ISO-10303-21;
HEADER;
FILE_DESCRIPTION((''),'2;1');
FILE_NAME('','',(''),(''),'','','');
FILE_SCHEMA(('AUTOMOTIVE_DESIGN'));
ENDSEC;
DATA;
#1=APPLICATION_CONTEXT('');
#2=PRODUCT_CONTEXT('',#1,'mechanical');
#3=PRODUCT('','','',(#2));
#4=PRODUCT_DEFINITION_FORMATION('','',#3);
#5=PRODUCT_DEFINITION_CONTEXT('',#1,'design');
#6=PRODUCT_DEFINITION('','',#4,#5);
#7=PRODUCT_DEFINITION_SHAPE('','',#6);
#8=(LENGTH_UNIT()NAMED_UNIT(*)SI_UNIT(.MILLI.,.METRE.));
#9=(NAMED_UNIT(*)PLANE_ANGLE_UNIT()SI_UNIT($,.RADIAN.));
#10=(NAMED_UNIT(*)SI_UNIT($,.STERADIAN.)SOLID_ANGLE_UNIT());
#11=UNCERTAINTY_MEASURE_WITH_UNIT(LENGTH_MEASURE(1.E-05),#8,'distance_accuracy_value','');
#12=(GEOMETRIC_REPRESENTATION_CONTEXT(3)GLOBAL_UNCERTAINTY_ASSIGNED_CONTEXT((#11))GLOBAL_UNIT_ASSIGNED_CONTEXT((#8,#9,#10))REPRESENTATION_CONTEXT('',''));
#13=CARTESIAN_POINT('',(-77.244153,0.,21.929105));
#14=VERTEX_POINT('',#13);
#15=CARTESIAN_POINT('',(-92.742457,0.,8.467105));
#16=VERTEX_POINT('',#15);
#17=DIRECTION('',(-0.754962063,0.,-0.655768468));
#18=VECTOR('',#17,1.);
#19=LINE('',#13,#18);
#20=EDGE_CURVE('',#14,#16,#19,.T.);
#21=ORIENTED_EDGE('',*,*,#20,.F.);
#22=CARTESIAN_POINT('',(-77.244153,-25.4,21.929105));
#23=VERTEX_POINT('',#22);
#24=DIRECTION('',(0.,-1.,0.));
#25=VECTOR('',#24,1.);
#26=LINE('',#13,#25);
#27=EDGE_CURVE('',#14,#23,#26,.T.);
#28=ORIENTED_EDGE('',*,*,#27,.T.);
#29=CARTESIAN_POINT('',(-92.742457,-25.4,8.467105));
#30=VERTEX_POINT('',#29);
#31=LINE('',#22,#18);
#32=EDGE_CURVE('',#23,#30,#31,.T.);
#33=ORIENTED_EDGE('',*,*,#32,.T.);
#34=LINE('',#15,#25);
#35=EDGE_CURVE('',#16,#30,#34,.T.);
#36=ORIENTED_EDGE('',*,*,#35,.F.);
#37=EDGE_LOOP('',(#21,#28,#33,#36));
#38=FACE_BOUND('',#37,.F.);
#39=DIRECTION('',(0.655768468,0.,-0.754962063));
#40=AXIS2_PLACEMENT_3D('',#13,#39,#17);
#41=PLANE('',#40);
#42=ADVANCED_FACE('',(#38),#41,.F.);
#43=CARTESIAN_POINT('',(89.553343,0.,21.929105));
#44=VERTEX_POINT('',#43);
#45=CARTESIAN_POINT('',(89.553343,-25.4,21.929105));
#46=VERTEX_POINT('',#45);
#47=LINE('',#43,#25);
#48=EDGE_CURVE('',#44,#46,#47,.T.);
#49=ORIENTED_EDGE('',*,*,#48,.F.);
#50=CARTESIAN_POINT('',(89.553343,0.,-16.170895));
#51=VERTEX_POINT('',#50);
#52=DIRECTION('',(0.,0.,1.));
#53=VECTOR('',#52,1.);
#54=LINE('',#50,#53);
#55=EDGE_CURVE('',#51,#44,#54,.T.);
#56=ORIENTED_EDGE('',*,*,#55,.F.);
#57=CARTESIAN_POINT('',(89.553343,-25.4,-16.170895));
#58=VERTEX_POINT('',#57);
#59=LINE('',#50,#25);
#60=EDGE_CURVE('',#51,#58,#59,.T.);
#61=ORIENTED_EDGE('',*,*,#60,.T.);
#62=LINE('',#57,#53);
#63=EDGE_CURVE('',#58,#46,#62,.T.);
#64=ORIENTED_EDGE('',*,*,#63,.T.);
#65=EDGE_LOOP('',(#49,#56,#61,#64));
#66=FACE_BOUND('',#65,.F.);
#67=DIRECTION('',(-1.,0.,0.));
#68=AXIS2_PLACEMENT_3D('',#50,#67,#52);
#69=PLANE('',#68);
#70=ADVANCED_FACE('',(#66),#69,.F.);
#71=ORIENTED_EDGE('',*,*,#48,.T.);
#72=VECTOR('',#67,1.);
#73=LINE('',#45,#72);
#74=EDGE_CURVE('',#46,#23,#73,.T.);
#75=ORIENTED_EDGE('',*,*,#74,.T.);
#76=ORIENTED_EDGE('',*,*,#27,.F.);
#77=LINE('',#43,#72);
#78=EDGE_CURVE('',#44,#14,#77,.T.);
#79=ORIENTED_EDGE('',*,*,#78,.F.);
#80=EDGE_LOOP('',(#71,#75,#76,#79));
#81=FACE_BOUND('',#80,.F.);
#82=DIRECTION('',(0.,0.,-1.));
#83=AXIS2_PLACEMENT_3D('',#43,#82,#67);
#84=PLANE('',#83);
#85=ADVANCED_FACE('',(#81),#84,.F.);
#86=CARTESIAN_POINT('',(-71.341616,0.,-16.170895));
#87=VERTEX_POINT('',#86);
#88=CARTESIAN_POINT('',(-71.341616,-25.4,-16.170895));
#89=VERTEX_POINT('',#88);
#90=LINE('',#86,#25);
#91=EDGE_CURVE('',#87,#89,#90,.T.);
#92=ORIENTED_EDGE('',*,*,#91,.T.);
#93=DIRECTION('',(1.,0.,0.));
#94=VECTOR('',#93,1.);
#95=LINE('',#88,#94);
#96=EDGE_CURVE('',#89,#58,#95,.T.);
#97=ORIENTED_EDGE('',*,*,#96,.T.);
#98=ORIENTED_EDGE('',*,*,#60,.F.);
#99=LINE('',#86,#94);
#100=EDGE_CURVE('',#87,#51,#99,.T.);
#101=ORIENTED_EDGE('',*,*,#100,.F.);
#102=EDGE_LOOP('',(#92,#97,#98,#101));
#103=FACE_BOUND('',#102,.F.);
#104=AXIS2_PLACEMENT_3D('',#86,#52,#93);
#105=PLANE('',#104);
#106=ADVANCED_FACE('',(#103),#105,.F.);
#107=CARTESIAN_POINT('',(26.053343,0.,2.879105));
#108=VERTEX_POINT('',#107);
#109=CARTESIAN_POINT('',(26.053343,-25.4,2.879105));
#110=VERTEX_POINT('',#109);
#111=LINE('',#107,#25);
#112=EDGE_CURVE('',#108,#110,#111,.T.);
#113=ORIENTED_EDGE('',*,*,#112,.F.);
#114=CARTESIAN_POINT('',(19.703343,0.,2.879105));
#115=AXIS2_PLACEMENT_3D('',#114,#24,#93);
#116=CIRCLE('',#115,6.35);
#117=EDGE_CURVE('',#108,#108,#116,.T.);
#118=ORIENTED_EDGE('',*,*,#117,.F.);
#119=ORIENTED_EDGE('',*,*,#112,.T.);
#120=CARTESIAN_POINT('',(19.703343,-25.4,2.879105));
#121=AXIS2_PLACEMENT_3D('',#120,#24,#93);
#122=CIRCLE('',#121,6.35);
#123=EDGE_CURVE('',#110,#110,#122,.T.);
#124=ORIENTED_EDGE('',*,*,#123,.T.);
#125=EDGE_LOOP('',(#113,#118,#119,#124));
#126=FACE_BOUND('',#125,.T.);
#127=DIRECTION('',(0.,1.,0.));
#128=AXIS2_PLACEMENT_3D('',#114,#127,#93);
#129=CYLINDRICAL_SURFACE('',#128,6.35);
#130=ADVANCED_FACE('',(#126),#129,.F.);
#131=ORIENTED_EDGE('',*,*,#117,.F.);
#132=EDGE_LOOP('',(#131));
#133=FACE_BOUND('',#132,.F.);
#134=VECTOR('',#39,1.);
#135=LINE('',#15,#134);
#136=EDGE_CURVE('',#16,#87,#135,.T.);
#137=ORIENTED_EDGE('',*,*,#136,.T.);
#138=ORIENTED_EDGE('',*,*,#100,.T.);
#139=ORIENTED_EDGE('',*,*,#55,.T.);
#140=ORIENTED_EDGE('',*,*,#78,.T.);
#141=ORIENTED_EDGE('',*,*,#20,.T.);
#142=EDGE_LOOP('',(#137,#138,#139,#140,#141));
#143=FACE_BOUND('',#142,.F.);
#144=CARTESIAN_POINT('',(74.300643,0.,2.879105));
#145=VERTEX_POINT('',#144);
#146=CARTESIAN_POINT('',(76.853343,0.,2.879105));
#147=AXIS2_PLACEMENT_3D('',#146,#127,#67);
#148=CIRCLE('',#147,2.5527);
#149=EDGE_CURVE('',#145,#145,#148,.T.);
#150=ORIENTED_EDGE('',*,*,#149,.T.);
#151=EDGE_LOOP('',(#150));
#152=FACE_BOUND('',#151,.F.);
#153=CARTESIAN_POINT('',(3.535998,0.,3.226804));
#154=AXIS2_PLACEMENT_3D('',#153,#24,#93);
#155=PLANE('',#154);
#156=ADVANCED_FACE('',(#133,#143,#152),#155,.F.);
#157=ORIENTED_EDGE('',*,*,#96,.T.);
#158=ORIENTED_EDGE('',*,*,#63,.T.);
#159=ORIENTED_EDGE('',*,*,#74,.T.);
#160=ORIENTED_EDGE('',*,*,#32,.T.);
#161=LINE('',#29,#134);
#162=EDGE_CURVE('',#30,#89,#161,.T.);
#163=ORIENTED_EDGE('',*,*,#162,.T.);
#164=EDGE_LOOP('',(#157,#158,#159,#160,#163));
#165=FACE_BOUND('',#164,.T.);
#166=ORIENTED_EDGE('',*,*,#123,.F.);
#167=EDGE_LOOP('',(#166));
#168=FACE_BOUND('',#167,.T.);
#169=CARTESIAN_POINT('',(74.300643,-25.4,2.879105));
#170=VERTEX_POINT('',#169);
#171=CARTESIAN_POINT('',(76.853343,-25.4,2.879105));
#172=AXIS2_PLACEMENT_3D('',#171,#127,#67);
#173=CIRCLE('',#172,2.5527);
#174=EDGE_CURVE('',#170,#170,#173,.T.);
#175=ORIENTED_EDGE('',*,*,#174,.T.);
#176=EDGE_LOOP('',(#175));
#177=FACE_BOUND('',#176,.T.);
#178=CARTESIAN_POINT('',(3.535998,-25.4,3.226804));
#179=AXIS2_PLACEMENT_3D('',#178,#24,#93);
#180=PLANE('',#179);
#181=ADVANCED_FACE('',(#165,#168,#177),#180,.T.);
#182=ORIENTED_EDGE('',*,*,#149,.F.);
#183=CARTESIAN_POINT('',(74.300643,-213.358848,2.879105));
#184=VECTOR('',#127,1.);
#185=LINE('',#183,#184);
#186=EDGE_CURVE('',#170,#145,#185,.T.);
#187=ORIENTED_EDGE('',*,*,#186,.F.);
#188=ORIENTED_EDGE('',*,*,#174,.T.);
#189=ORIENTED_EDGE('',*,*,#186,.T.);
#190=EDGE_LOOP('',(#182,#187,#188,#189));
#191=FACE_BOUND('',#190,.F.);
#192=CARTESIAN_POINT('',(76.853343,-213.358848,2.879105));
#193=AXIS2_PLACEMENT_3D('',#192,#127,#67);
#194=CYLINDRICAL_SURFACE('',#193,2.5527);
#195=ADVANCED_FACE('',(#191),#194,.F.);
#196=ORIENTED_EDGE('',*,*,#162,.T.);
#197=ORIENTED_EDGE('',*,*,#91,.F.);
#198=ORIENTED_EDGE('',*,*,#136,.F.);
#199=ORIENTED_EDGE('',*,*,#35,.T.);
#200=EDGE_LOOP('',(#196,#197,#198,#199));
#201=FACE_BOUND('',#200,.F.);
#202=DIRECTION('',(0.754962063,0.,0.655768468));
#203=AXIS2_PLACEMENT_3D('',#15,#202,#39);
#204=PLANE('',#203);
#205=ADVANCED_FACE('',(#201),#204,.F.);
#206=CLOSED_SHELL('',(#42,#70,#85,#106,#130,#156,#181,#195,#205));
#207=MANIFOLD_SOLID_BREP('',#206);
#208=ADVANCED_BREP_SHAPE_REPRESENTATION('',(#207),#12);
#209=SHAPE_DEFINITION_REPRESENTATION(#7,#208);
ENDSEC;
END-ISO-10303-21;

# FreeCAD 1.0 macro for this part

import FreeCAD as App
import Part
import Sketcher
Q = App.Units.Quantity


def add_polygon(sketch, points):
    """Adds a closed chain of lines whose ends are joined by coincident constraints."""
    first, n = sketch.GeometryCount, len(points)
    for a, b in zip(points, points[1:] + points[:1]):
        sketch.addGeometry(Part.LineSegment(App.Vector(*a, 0), App.Vector(*b, 0)), False)
    for i in range(n):
        sketch.addConstraint(Sketcher.Constraint("Coincident", first + i, 2, first + (i + 1) % n, 1))

doc = App.newDocument("Part")
body = doc.addObject("PartDesign::Body", "Body")

# Sketch on XZ plane
sketch1 = doc.addObject("Sketcher::SketchObject", "Sketch")
body.addObject(sketch1)
sketch1.AttachmentSupport = (doc.XZ_Plane, [""])
sketch1.MapMode = "FlatFace"
add_polygon(sketch1, [(89.553343, 21.929105), (-77.244153, 21.929105), (-92.742457, 8.467105), (-71.341616, -16.170895), (89.553343, -16.170895)])  # lines 0-4
sketch1.addGeometry(Part.Circle(App.Vector(19.703343, 2.879105, 0), App.Vector(0, 0, 1), 6.35), False)  # 5
sketch1.addConstraint([
    Sketcher.Constraint("Horizontal", 0),
    Sketcher.Constraint("Horizontal", 3),
    Sketcher.Constraint("Vertical", 4),
    Sketcher.Constraint("Perpendicular", 1, 2),
    Sketcher.Constraint("Diameter", 5, Q("0.5 in")),
    Sketcher.Constraint("DistanceY", 4, 1, 4, 2, Q("1.5 in")),
    Sketcher.Constraint("DistanceY", 5, 3, 0, 2, Q("0.75 in")),
    Sketcher.Constraint("DistanceY", 1, 2, 0, 2, Q("0.53 in")),
    Sketcher.Constraint("DistanceX", 5, 3, 3, 2, Q("2.75 in")),
    Sketcher.Constraint("DistanceX", 1, 2, 5, 3, Q("4.427 in")),
    Sketcher.Constraint("DistanceX", 3, 1, 3, 2, Q("160.894958 mm")),
    Sketcher.Constraint("DistanceX", -1, 1, 5, 3, Q("19.703343 mm")),
    Sketcher.Constraint("DistanceY", -1, 1, 5, 3, Q("2.879105 mm")),
])
pad1 = doc.addObject("PartDesign::Pad", "Pad")
body.addObject(pad1)
pad1.Profile = sketch1
pad1.Length = Q("1 in")

# Sketch on XZ plane
sketch2 = doc.addObject("Sketcher::SketchObject", "Sketch001")
body.addObject(sketch2)
sketch2.AttachmentSupport = (doc.XZ_Plane, [""])
sketch2.MapMode = "FlatFace"
sketch2.AttachmentOffset = App.Placement(App.Vector(0, 0, 1 * 25.4), App.Rotation())
sketch2.addGeometry(Part.Circle(App.Vector(76.853343, 2.879105, 0), App.Vector(0, 0, 1), 2.5527), False)
sketch2.addConstraint([
    Sketcher.Constraint("Diameter", 0, Q("0.201 in")),
    Sketcher.Constraint("DistanceX", -1, 1, 0, 3, Q("76.853343 mm")),
    Sketcher.Constraint("DistanceY", -1, 1, 0, 3, Q("2.879105 mm")),
])
doc.recompute()
hole = doc.addObject("PartDesign::Hole", "Hole")
body.addObject(hole)
hole.Profile = sketch2
hole.ThreadType = "None"
hole.Diameter = Q("0.201 in")
hole.DepthType = "ThroughAll"

doc.recompute()
